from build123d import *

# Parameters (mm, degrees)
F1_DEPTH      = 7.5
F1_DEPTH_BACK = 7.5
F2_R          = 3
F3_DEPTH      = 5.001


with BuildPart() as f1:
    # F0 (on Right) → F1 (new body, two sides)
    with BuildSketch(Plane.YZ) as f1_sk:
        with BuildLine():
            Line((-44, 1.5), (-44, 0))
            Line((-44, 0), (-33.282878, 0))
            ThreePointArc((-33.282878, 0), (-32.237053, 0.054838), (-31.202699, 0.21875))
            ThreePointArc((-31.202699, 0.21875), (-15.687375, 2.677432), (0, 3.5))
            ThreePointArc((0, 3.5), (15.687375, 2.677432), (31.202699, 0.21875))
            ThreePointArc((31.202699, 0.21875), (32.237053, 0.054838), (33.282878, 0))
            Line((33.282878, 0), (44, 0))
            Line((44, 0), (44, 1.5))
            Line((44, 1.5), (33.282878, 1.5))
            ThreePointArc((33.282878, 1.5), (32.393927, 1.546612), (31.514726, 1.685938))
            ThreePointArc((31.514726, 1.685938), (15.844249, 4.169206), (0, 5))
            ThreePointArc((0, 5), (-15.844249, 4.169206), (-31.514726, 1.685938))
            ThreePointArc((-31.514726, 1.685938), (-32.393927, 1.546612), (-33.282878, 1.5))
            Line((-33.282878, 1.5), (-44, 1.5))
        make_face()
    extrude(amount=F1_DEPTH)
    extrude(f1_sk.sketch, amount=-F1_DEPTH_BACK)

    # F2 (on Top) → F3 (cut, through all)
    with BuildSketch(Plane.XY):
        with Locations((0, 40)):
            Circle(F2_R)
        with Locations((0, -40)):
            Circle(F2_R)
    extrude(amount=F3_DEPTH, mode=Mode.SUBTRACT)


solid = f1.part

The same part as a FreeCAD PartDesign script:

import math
import FreeCAD as App
import Part
import Sketcher
Q = App.Units.Quantity

doc = App.newDocument("Part")
body = doc.addObject("PartDesign::Body", "Body")

# Sketch on YZ plane
sketch1 = body.newObject("Sketcher::SketchObject", "Sketch")
sketch1.AttachmentSupport = (doc.getObject("YZ_Plane"), [""])
sketch1.MapMode = "FlatFace"
sketch1.addGeometry([
    Part.LineSegment(App.Vector(-44, 1.5, 0), App.Vector(-44, 0, 0)),  # 0
    Part.LineSegment(App.Vector(-44, 0, 0), App.Vector(-33.282878, 0, 0)),  # 1
    Part.ArcOfCircle(Part.Circle(App.Vector(-33.28288, 10.000009, 0), App.Vector(0, 0, 1), 10.000009), math.radians(-89.99999), math.radians(-77.993779)),  # 2
    Part.ArcOfCircle(Part.Circle(App.Vector(0.000003, -146.500037, 0), App.Vector(0, 0, 1), 150.000037), math.radians(90.000001), math.radians(102.006225)),  # 3
    Part.ArcOfCircle(Part.Circle(App.Vector(-0.000003, -146.500037, 0), App.Vector(0, 0, 1), 150.000037), math.radians(77.993775), math.radians(89.999999)),  # 4
    Part.ArcOfCircle(Part.Circle(App.Vector(33.28288, 10.000009, 0), App.Vector(0, 0, 1), 10.000009), math.radians(-102.006221), math.radians(-90.00001)),  # 5
    Part.LineSegment(App.Vector(33.282878, 0, 0), App.Vector(44, 0, 0)),  # 6
    Part.LineSegment(App.Vector(44, 0, 0), App.Vector(44, 1.5, 0)),  # 7
    Part.LineSegment(App.Vector(44, 1.5, 0), App.Vector(33.282878, 1.5, 0)),  # 8
    Part.ArcOfCircle(Part.Circle(App.Vector(33.282872, 9.999911, 0), App.Vector(0, 0, 1), 8.499911), math.radians(-102.006306), math.radians(-89.999959)),  # 9
    Part.ArcOfCircle(Part.Circle(App.Vector(-0.000011, -146.500135, 0), App.Vector(0, 0, 1), 151.500135), math.radians(77.99378), math.radians(89.999996)),  # 10
    Part.ArcOfCircle(Part.Circle(App.Vector(0.000011, -146.500135, 0), App.Vector(0, 0, 1), 151.500135), math.radians(90.000004), math.radians(102.00622)),  # 11
    Part.ArcOfCircle(Part.Circle(App.Vector(-33.282872, 9.999911, 0), App.Vector(0, 0, 1), 8.499911), math.radians(-90.000041), math.radians(-77.993694)),  # 12
    Part.LineSegment(App.Vector(-33.282878, 1.5, 0), App.Vector(-44, 1.5, 0)),  # 13
], False)
sketch1.addConstraint([
    Sketcher.Constraint("Coincident", 0, 2, 1, 1),
    Sketcher.Constraint("Coincident", 1, 2, 2, 1),
    Sketcher.Constraint("Coincident", 2, 2, 3, 2),
    Sketcher.Constraint("Coincident", 3, 1, 4, 2),
    Sketcher.Constraint("Coincident", 4, 1, 5, 1),
    Sketcher.Constraint("Coincident", 5, 2, 6, 1),
    Sketcher.Constraint("Coincident", 6, 2, 7, 1),
    Sketcher.Constraint("Coincident", 7, 2, 8, 1),
    Sketcher.Constraint("Coincident", 8, 2, 9, 2),
    Sketcher.Constraint("Coincident", 9, 1, 10, 1),
    Sketcher.Constraint("Coincident", 10, 2, 11, 1),
    Sketcher.Constraint("Coincident", 11, 2, 12, 2),
    Sketcher.Constraint("Coincident", 12, 1, 13, 1),
    Sketcher.Constraint("Coincident", 13, 2, 0, 1),
    Sketcher.Constraint("Vertical", 0),
    Sketcher.Constraint("Horizontal", 1),
    Sketcher.Constraint("Horizontal", 6),
    Sketcher.Constraint("Vertical", 7),
    Sketcher.Constraint("Horizontal", 8),
    Sketcher.Constraint("Horizontal", 13),
    Sketcher.Constraint("Coincident", 4, 3, 3, 3),
    Sketcher.Constraint("PointOnObject", 0, 2, -1),
    Sketcher.Constraint("PointOnObject", 3, 1, -2),
    Sketcher.Constraint("PointOnObject", 5, 2, -1),
    Sketcher.Constraint("PointOnObject", 10, 2, -2),
    Sketcher.Constraint("DistanceY", 0, 2, 0, 1, Q("1.5 mm")),
    Sketcher.Constraint("DistanceY", 7, 1, 7, 2, Q("1.5 mm")),
    Sketcher.Constraint("DistanceX", 0, 2, -1, 1, Q("44 mm")),
    Sketcher.Constraint("DistanceX", -1, 1, 6, 2, Q("44 mm")),
    Sketcher.Constraint("DistanceY", -1, 1, 10, 2, Q("5 mm")),
    Sketcher.Constraint("DistanceY", -1, 1, 3, 1, Q("3.5 mm")),
    Sketcher.Constraint("Radius", 2, Q("10.000009 mm")),
    Sketcher.Constraint("Radius", 5, Q("10.000009 mm")),
    Sketcher.Constraint("Radius", 9, Q("8.499911 mm")),
    Sketcher.Constraint("Radius", 12, Q("8.499911 mm")),
    Sketcher.Constraint("Radius", 3, Q("150.000037 mm")),
    Sketcher.Constraint("Radius", 10, Q("151.500135 mm")),
    Sketcher.Constraint("Radius", 11, Q("151.500135 mm")),
    Sketcher.Constraint("DistanceX", 2, 2, -1, 1, Q("31.202699 mm")),
    Sketcher.Constraint("DistanceX", -1, 1, 4, 1, Q("31.202699 mm")),
    Sketcher.Constraint("DistanceX", 1, 1, 1, 2, Q("10.717122 mm")),
    Sketcher.Constraint("DistanceX", 6, 1, 6, 2, Q("10.717122 mm")),
    Sketcher.Constraint("DistanceX", 8, 2, 8, 1, Q("10.717122 mm")),
    Sketcher.Constraint("DistanceX", 13, 2, 13, 1, Q("10.717122 mm")),
    Sketcher.Constraint("DistanceX", 2, 3, -1, 1, Q("33.28288 mm")),
    Sketcher.Constraint("DistanceX", -1, 1, 9, 3, Q("33.282872 mm")),
    Sketcher.Constraint("DistanceX", 12, 3, -1, 1, Q("33.282872 mm")),
    Sketcher.Constraint("DistanceY", -1, 1, 9, 1, Q("1.685938 mm")),
    Sketcher.Constraint("DistanceY", 11, 2, 2, 3, Q("8.314071 mm")),
])
pad1 = body.newObject("PartDesign::Pad", "Pad")
pad1.Profile = sketch1
pad1.Type = "TwoLengths"
pad1.Length = 7.5
pad1.Length2 = 7.5

# Sketch on XY plane
sketch2 = body.newObject("Sketcher::SketchObject", "Sketch001")
sketch2.AttachmentSupport = (doc.getObject("XY_Plane"), [""])
sketch2.MapMode = "FlatFace"
sketch2.addGeometry([
    Part.Circle(App.Vector(0, 40, 0), App.Vector(0, 0, 1), 3),
    Part.Circle(App.Vector(0, -40, 0), App.Vector(0, 0, 1), 3),
], False)
sketch2.addConstraint([
    Sketcher.Constraint("Equal", 0, 1),
    Sketcher.Constraint("Symmetric", 0, 3, 1, 3, -1, 1),
    Sketcher.Constraint("PointOnObject", 0, 3, -2),
    Sketcher.Constraint("Diameter", 0, Q("6 mm")),
    Sketcher.Constraint("DistanceY", -1, 1, 0, 3, Q("40 mm")),
])
pocket1 = body.newObject("PartDesign::Pocket", "Pocket")
pocket1.Profile = sketch2
pocket1.Type = "ThroughAll"
pocket1.Reversed = True

doc.recompute()
